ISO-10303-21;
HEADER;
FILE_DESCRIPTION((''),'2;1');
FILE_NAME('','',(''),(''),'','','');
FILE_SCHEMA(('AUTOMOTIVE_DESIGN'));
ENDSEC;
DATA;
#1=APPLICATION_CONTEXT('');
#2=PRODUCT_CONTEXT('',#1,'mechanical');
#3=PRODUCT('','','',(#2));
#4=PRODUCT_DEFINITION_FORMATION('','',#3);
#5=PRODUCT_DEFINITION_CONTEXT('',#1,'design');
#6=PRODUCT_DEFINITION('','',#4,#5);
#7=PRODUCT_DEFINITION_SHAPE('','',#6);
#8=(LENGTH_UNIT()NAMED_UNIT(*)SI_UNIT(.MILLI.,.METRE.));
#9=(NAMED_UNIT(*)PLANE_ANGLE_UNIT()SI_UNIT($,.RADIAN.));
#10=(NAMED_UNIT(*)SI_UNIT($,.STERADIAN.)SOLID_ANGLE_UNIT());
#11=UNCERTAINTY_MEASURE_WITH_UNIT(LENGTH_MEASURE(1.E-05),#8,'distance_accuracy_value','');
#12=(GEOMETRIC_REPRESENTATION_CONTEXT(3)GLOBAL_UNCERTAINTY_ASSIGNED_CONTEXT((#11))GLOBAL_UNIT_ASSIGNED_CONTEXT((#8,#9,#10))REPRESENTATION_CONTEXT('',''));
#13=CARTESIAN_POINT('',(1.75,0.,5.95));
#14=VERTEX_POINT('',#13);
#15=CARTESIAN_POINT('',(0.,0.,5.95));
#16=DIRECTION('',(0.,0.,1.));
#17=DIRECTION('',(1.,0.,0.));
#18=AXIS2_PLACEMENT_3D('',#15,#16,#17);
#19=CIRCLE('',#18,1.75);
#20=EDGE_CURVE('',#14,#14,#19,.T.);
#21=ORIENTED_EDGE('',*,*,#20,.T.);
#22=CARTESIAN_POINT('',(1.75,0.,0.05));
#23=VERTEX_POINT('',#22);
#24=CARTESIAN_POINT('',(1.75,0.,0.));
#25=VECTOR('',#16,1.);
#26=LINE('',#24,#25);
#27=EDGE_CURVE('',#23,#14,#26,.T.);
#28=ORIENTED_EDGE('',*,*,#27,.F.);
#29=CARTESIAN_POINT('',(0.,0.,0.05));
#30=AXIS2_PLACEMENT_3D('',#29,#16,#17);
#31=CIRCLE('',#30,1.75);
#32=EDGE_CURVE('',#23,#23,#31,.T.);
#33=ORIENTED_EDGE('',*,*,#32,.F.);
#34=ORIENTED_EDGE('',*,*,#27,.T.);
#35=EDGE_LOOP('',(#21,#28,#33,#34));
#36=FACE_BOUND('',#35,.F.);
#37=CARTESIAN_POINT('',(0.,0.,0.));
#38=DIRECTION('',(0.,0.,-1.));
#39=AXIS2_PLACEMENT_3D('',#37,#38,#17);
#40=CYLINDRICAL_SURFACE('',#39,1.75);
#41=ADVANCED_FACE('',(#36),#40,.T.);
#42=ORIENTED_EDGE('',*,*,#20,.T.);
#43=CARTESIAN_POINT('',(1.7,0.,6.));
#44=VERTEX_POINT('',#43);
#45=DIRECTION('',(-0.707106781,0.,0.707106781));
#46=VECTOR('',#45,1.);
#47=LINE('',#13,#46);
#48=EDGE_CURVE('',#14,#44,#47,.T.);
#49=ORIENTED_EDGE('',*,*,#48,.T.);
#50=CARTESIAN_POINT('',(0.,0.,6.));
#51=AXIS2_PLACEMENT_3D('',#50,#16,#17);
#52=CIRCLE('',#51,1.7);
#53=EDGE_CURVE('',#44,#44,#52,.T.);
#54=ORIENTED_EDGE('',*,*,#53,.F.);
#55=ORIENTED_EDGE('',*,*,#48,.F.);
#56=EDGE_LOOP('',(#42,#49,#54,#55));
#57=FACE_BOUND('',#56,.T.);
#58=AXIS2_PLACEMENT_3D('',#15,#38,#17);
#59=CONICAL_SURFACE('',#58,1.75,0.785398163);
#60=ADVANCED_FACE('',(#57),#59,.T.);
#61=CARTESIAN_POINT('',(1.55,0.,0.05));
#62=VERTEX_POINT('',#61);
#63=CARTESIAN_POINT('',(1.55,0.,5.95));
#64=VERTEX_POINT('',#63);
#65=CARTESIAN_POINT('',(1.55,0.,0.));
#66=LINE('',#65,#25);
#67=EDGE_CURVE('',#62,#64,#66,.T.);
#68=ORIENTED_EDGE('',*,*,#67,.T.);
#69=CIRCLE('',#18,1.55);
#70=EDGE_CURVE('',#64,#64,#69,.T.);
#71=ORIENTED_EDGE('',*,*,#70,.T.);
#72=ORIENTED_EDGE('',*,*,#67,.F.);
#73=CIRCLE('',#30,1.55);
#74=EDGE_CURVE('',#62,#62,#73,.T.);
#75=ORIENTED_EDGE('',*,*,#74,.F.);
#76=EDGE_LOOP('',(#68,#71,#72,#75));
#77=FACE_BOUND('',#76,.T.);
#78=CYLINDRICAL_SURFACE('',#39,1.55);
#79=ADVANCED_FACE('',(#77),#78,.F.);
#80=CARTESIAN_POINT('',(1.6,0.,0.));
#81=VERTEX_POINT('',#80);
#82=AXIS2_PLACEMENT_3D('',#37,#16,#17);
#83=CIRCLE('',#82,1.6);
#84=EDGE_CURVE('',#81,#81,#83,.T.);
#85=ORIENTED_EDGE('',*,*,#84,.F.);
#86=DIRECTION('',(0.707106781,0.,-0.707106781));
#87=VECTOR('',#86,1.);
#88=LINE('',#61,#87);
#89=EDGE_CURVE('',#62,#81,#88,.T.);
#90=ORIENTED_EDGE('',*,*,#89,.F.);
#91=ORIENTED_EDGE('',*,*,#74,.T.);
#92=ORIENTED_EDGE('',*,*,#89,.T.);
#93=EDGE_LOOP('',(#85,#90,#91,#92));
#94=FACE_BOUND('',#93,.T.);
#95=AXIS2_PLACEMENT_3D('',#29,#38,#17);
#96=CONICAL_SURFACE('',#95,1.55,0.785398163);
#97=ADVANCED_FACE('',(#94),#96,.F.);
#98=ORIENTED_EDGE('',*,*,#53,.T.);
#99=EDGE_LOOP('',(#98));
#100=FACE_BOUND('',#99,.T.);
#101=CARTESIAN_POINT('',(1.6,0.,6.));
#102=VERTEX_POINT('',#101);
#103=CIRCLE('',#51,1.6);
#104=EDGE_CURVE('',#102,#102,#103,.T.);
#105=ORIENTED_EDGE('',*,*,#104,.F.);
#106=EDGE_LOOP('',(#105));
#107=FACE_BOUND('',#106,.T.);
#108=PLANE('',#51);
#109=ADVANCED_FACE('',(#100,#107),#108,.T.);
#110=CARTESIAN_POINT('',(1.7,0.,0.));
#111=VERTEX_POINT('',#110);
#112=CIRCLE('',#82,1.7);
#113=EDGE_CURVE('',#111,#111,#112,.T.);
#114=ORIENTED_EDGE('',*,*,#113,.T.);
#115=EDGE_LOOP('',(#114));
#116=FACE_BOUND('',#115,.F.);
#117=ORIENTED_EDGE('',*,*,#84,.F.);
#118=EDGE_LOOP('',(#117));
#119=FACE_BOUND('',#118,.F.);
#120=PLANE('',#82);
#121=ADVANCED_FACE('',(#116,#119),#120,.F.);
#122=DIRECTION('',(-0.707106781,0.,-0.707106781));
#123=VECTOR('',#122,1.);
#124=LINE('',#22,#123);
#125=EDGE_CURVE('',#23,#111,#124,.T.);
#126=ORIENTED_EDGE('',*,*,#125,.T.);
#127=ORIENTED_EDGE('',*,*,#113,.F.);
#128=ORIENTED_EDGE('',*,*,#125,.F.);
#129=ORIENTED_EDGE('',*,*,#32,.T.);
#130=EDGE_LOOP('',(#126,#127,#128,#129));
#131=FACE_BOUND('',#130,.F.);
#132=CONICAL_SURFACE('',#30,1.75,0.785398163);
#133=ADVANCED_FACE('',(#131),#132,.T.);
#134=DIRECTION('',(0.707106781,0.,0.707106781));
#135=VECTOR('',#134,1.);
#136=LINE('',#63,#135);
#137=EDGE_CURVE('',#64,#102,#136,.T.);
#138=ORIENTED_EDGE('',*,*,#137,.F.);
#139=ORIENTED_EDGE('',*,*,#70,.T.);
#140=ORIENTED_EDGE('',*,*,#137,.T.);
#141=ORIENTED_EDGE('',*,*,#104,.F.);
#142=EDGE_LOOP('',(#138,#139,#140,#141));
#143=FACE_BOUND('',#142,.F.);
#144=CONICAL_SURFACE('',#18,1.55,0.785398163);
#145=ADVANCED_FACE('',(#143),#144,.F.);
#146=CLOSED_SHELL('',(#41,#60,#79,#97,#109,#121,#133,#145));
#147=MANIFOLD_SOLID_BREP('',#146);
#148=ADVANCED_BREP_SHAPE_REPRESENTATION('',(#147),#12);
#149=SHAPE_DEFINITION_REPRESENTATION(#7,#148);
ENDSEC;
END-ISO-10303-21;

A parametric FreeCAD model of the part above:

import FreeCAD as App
import Part
import Sketcher
from FreeCAD import Vector
Q = App.Units.Quantity


def edges_at(feature, points):
    """Names of the edges that pass closest to the given points."""
    edges = feature.Shape.Edges
    near = lambda p: min(range(len(edges)), key=lambda i: edges[i].distToShape(Part.Vertex(*p))[0])
    return sorted({f"Edge{near(p) + 1}" for p in points})

doc = App.newDocument("Part")
params = doc.addObject("Spreadsheet::Sheet", "Params")
for row, (alias, value) in enumerate([
    ("sketch1_diameter", "3.5 mm"),
    ("sketch1_diameter2", "3.1 mm"),
    ("pad1_length", "6 mm"),
    ("chamfer_size", "0.05 mm"),
], start=1):
    params.set(f"A{row}", alias)
    params.set(f"B{row}", "=" + value)
    params.setAlias(f"B{row}", alias)

body = doc.addObject("PartDesign::Body", "Body")

# Sketch on XY plane
sketch1 = body.newObject("Sketcher::SketchObject", "Sketch")
sketch1.AttachmentSupport = (doc.getObject("XY_Plane"), [""])
sketch1.MapMode = "FlatFace"
sketch1.addGeometry([
    Part.Circle(Vector(0, 0, 0), Vector(0, 0, 1), 1.8),
    Part.Circle(Vector(0, 0, 0), Vector(0, 0, 1), 1.6),
], False)
sketch1.addConstraint([
    Sketcher.Constraint("Coincident", 0, 3, -1, 1),
    Sketcher.Constraint("Coincident", 1, 3, -1, 1),
    Sketcher.Constraint("Diameter", 0, Q("3.5 mm")),
    Sketcher.Constraint("Diameter", 1, Q("3.1 mm")),
])
sketch1.setExpression("Constraints[2]", "Params.sketch1_diameter")
sketch1.setExpression("Constraints[3]", "Params.sketch1_diameter2")
pad1 = body.newObject("PartDesign::Pad", "Pad")
pad1.Profile = sketch1
pad1.setExpression("Length", "Params.pad1_length")
doc.recompute()

chamfer = body.newObject("PartDesign::Chamfer", "Chamfer")
chamfer.Base = (pad1, edges_at(pad1, [
    (-1.75, 0, 6),
    (-1.55, 0, 6),
    (-1.75, 0, 0),
    (-1.55, 0, 0),
]))
chamfer.setExpression("Size", "Params.chamfer_size")

doc.recompute()
